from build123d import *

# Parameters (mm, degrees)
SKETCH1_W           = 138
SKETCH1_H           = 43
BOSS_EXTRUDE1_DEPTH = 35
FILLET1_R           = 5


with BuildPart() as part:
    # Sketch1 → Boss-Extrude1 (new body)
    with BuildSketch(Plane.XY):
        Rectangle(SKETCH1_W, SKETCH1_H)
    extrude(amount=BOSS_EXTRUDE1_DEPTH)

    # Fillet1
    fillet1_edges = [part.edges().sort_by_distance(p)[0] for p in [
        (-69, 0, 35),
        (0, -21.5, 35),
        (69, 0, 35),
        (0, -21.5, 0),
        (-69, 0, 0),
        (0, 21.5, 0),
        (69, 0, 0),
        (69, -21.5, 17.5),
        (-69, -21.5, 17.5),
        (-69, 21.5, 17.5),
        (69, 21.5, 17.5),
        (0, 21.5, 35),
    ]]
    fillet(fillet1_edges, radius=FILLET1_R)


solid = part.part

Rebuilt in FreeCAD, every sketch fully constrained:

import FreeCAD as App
import Part
import Sketcher
Q = App.Units.Quantity


def add_polygon(sketch, points):
    """Adds a closed chain of lines whose ends are joined by coincident constraints."""
    first, n = sketch.GeometryCount, len(points)
    for a, b in zip(points, points[1:] + points[:1]):
        sketch.addGeometry(Part.LineSegment(App.Vector(*a, 0), App.Vector(*b, 0)), False)
    for i in range(n):
        sketch.addConstraint(Sketcher.Constraint("Coincident", first + i, 2, first + (i + 1) % n, 1))

doc = App.newDocument("Part")
params = doc.addObject("Spreadsheet::Sheet", "Params")
for row, (alias, value) in enumerate([
    ("sketch1_width", "138 mm"),
    ("sketch1_height", "43 mm"),
    ("pad1_length", "35 mm"),
    ("fillet_radius", "5 mm"),
], start=1):
    params.set(f"A{row}", alias)
    params.set(f"B{row}", "=" + value)
    params.setAlias(f"B{row}", alias)

body = doc.addObject("PartDesign::Body", "Body")

# Sketch on XY plane
sketch1 = body.newObject("Sketcher::SketchObject", "Sketch")
sketch1.AttachmentSupport = (doc.getObject("XY_Plane"), [""])
sketch1.MapMode = "FlatFace"
add_polygon(sketch1, [(-69, 22), (-69, -22), (69, -22), (69, 22)])  # lines 0-3
sketch1.addConstraint(Sketcher.Constraint("Vertical", 0))
sketch1.addConstraint(Sketcher.Constraint("Horizontal", 1))
sketch1.addConstraint(Sketcher.Constraint("Vertical", 2))
sketch1.addConstraint(Sketcher.Constraint("Horizontal", 3))
sketch1.addConstraint(Sketcher.Constraint("Symmetric", 0, 2, 2, 2, -1, 1))
sketch1.addConstraint(Sketcher.Constraint("DistanceX", 1, 1, 1, 2, Q("138 mm")))
sketch1.addConstraint(Sketcher.Constraint("DistanceY", 0, 2, 0, 1, Q("43 mm")))
sketch1.setExpression("Constraints[9]", "Params.sketch1_width")
sketch1.setExpression("Constraints[10]", "Params.sketch1_height")
pad1 = body.newObject("PartDesign::Pad", "Pad")
pad1.Profile = sketch1
pad1.setExpression("Length", "Params.pad1_length")
doc.recompute()

fillet = body.newObject("PartDesign::Fillet", "Fillet")
fillet.Base = (pad1, ["Edge1"])
fillet.UseAllEdges = True
fillet.setExpression("Radius", "Params.fillet_radius")

doc.recompute()
